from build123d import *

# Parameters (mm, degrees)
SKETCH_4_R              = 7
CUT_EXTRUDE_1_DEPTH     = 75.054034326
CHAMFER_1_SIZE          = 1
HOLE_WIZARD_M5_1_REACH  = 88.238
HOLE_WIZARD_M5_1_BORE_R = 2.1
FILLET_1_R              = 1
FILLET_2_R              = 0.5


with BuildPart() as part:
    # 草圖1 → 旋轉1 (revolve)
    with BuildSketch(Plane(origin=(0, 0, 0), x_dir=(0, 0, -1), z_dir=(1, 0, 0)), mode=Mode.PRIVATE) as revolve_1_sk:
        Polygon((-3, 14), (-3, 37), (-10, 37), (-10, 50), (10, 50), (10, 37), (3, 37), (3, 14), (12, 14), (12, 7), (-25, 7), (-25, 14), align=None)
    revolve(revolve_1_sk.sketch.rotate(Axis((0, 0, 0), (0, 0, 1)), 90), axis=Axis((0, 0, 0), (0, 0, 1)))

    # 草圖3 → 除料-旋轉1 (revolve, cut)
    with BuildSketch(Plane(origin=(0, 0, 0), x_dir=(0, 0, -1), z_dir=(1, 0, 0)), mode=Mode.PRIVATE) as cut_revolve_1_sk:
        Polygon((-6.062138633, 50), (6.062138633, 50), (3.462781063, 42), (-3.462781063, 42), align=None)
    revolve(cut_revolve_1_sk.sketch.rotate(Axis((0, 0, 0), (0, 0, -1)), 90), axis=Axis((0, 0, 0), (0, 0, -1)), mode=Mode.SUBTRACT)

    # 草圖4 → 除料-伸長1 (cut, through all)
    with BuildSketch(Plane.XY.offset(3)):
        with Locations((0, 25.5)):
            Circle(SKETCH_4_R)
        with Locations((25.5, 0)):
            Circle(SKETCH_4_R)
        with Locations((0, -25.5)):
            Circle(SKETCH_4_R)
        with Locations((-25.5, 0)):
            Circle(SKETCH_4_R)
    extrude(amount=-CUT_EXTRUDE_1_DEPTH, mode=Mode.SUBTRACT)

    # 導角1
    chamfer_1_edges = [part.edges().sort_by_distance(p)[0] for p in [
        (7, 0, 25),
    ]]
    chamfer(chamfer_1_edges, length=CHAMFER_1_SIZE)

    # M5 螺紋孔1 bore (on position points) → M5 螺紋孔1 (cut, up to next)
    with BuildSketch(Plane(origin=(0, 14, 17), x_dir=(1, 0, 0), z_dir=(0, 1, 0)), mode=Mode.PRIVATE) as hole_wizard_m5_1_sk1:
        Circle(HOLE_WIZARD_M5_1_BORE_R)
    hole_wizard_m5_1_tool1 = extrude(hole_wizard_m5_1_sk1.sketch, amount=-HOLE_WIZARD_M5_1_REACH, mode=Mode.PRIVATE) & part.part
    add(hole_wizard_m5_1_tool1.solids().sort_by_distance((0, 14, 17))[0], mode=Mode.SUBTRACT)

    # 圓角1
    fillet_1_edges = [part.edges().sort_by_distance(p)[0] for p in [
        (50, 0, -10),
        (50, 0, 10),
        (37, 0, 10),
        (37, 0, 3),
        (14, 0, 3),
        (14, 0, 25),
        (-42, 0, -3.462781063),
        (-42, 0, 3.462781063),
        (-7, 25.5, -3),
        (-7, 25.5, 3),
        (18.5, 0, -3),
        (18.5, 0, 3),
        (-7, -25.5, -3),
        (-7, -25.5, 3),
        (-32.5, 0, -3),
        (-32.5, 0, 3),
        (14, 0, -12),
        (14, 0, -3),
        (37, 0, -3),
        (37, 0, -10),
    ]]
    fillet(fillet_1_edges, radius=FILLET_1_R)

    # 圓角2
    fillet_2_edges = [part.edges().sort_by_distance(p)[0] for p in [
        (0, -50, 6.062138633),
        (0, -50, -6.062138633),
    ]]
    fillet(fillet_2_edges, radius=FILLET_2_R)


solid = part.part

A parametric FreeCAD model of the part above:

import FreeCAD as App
import Part
import Sketcher
Q = App.Units.Quantity


def edges_at(feature, points):
    """Names of the edges that pass closest to the given points."""
    edges = feature.Shape.Edges
    near = lambda p: min(range(len(edges)), key=lambda i: edges[i].distToShape(Part.Vertex(*p))[0])
    return sorted({f"Edge{near(p) + 1}" for p in points})


def add_polygon(sketch, points):
    """Adds a closed chain of lines whose ends are joined by coincident constraints."""
    first, n = sketch.GeometryCount, len(points)
    for a, b in zip(points, points[1:] + points[:1]):
        sketch.addGeometry(Part.LineSegment(App.Vector(*a, 0), App.Vector(*b, 0)), False)
    for i in range(n):
        sketch.addConstraint(Sketcher.Constraint("Coincident", first + i, 2, first + (i + 1) % n, 1))

doc = App.newDocument("Part")
body = doc.addObject("PartDesign::Body", "Body")

# Sketch on YZ plane
sketch1 = doc.addObject("Sketcher::SketchObject", "Sketch")
body.addObject(sketch1)
sketch1.AttachmentSupport = (doc.YZ_Plane, [""])
sketch1.MapMode = "FlatFace"
add_polygon(sketch1, [(37, 3), (14, 3), (14, 25), (7, 25), (7, -12), (14, -12), (14, -3), (37, -3), (37, -10), (50, -10), (50, 10), (37, 10)])  # lines 0-11
sketch1.addConstraint([
    Sketcher.Constraint("Horizontal", 0),
    Sketcher.Constraint("Vertical", 1),
    Sketcher.Constraint("Horizontal", 2),
    Sketcher.Constraint("Vertical", 3),
    Sketcher.Constraint("Horizontal", 4),
    Sketcher.Constraint("Vertical", 5),
    Sketcher.Constraint("Horizontal", 6),
    Sketcher.Constraint("Vertical", 7),
    Sketcher.Constraint("Horizontal", 8),
    Sketcher.Constraint("Vertical", 9),
    Sketcher.Constraint("Horizontal", 10),
    Sketcher.Constraint("Vertical", 11),
    Sketcher.Constraint("Symmetric", 0, 2, 5, 2, -1),
    Sketcher.Constraint("Symmetric", 7, 2, 10, 2, -1),
    Sketcher.Constraint("Equal", 4, 7),
    Sketcher.Constraint("DistanceX", 0, 2, 0, 1, 23.0),
    Sketcher.Constraint("DistanceX", 2, 2, 2, 1, 7.0),
    Sketcher.Constraint("DistanceX", 8, 1, 8, 2, 13.0),
    Sketcher.Constraint("DistanceY", 1, 1, 1, 2, 22.0),
    Sketcher.Constraint("DistanceY", 3, 2, 3, 1, 37.0),
    Sketcher.Constraint("DistanceY", 5, 1, 5, 2, 9.0),
    Sketcher.Constraint("DistanceX", -1, 1, 0, 2, 14.0),
])
revolution = doc.addObject("PartDesign::Revolution", "Revolution")
body.addObject(revolution)
revolution.Profile = sketch1
revolution.ReferenceAxis = (sketch1, ["V_Axis"])
revolution.Angle = 360

# Sketch on YZ plane
sketch2 = doc.addObject("Sketcher::SketchObject", "Sketch001")
body.addObject(sketch2)
sketch2.AttachmentSupport = (doc.YZ_Plane, [""])
sketch2.MapMode = "FlatFace"
add_polygon(sketch2, [(50, -6), (50, 6), (42, 3), (42, -3)])  # lines 0-3
sketch2.addConstraint([
    Sketcher.Constraint("Vertical", 0),
    Sketcher.Constraint("Vertical", 2),
    Sketcher.Constraint("Equal", 1, 3),
    Sketcher.Constraint("Angle", 1, Q("-162 deg")),
    Sketcher.Constraint("DistanceX", -1, 1, 0, 2, 50.0),
    Sketcher.Constraint("DistanceX", -1, 1, 1, 2, 42.0),
    Sketcher.Constraint("DistanceY", 0, 1, 0, 2, 12.124277),
    Sketcher.Constraint("DistanceY", -1, 1, 0, 2, 6.062139),
])
groove = doc.addObject("PartDesign::Groove", "Groove")
body.addObject(groove)
groove.Profile = sketch2
groove.ReferenceAxis = (sketch2, ["V_Axis"])
groove.Angle = 360

# Sketch on XY plane
sketch3 = doc.addObject("Sketcher::SketchObject", "Sketch002")
body.addObject(sketch3)
sketch3.AttachmentSupport = (doc.XY_Plane, [""])
sketch3.MapMode = "FlatFace"
sketch3.AttachmentOffset = App.Placement(App.Vector(0, 0, 3), App.Rotation())
sketch3.addGeometry([
    Part.Circle(App.Vector(0, 26, 0), App.Vector(0, 0, 1), 7),
    Part.Circle(App.Vector(26, 0, 0), App.Vector(0, 0, 1), 7),
    Part.Circle(App.Vector(0, -26, 0), App.Vector(0, 0, 1), 7),
    Part.Circle(App.Vector(-26, 0, 0), App.Vector(0, 0, 1), 7),
], False)
sketch3.addConstraint([
    Sketcher.Constraint("Equal", 0, 1),
    Sketcher.Constraint("Equal", 1, 2),
    Sketcher.Constraint("Equal", 2, 3),
    Sketcher.Constraint("Symmetric", 0, 3, 2, 3, -1, 1),
    Sketcher.Constraint("Symmetric", 1, 3, 3, 3, -1, 1),
    Sketcher.Constraint("PointOnObject", 0, 3, -2),
    Sketcher.Constraint("PointOnObject", 1, 3, -1),
    Sketcher.Constraint("Diameter", 0, 14.0),
    Sketcher.Constraint("DistanceY", 2, 3, 0, 3, 51.0),
    Sketcher.Constraint("DistanceX", 3, 3, 1, 3, 51.0),
])
pocket1 = doc.addObject("PartDesign::Pocket", "Pocket")
body.addObject(pocket1)
pocket1.Profile = sketch3
pocket1.Type = "ThroughAll"
doc.recompute()

chamfer = doc.addObject("PartDesign::Chamfer", "Chamfer")
body.addObject(chamfer)
chamfer.Base = (pocket1, edges_at(pocket1, [(7, 0, 25)]))
chamfer.Size = 1

# Sketch on XZ plane
sketch4 = doc.addObject("Sketcher::SketchObject", "Sketch003")
body.addObject(sketch4)
sketch4.AttachmentSupport = (doc.XZ_Plane, [""])
sketch4.MapMode = "FlatFace"
sketch4.AttachmentOffset = App.Placement(App.Vector(0, 0, -14), App.Rotation())
sketch4.addGeometry(Part.Circle(App.Vector(0, 17, 0), App.Vector(0, 0, 1), 2.1), False)
sketch4.addConstraint([
    Sketcher.Constraint("PointOnObject", 0, 3, -2),
    Sketcher.Constraint("Diameter", 0, 4.2),
    Sketcher.Constraint("DistanceY", -1, 1, 0, 3, 17.0),
])
pocket2 = doc.addObject("PartDesign::Pocket", "Pocket001")
body.addObject(pocket2)
pocket2.Profile = sketch4
pocket2.Length = 7.322426
pocket2.Reversed = True
doc.recompute()

fillet = doc.addObject("PartDesign::Fillet", "Fillet")
body.addObject(fillet)
fillet.Base = (pocket2, edges_at(pocket2, [
    (50, 0, -10),
    (50, 0, 10),
    (37, 0, 10),
    (37, 0, 3),
    (14, 0, 3),
    (14, 0, 25),
    (-42, 0, -3.463),
    (-42, 0, 3.463),
    (-7, 25.5, -3),
    (-7, 25.5, 3),
    (18.5, 0, -3),
    (18.5, 0, 3),
    (-7, -25.5, -3),
    (-7, -25.5, 3),
    (-32.5, 0, -3),
    (-32.5, 0, 3),
    (14, 0, -12),
    (14, 0, -3),
    (37, 0, -3),
    (37, 0, -10),
]))
fillet.Radius = 1
doc.recompute()

fillet2 = doc.addObject("PartDesign::Fillet", "Fillet001")
body.addObject(fillet2)
fillet2.Base = (fillet, edges_at(fillet, [(0, -50, 6.062), (0, -50, -6.062)]))
fillet2.Radius = 0.5

doc.recompute()
